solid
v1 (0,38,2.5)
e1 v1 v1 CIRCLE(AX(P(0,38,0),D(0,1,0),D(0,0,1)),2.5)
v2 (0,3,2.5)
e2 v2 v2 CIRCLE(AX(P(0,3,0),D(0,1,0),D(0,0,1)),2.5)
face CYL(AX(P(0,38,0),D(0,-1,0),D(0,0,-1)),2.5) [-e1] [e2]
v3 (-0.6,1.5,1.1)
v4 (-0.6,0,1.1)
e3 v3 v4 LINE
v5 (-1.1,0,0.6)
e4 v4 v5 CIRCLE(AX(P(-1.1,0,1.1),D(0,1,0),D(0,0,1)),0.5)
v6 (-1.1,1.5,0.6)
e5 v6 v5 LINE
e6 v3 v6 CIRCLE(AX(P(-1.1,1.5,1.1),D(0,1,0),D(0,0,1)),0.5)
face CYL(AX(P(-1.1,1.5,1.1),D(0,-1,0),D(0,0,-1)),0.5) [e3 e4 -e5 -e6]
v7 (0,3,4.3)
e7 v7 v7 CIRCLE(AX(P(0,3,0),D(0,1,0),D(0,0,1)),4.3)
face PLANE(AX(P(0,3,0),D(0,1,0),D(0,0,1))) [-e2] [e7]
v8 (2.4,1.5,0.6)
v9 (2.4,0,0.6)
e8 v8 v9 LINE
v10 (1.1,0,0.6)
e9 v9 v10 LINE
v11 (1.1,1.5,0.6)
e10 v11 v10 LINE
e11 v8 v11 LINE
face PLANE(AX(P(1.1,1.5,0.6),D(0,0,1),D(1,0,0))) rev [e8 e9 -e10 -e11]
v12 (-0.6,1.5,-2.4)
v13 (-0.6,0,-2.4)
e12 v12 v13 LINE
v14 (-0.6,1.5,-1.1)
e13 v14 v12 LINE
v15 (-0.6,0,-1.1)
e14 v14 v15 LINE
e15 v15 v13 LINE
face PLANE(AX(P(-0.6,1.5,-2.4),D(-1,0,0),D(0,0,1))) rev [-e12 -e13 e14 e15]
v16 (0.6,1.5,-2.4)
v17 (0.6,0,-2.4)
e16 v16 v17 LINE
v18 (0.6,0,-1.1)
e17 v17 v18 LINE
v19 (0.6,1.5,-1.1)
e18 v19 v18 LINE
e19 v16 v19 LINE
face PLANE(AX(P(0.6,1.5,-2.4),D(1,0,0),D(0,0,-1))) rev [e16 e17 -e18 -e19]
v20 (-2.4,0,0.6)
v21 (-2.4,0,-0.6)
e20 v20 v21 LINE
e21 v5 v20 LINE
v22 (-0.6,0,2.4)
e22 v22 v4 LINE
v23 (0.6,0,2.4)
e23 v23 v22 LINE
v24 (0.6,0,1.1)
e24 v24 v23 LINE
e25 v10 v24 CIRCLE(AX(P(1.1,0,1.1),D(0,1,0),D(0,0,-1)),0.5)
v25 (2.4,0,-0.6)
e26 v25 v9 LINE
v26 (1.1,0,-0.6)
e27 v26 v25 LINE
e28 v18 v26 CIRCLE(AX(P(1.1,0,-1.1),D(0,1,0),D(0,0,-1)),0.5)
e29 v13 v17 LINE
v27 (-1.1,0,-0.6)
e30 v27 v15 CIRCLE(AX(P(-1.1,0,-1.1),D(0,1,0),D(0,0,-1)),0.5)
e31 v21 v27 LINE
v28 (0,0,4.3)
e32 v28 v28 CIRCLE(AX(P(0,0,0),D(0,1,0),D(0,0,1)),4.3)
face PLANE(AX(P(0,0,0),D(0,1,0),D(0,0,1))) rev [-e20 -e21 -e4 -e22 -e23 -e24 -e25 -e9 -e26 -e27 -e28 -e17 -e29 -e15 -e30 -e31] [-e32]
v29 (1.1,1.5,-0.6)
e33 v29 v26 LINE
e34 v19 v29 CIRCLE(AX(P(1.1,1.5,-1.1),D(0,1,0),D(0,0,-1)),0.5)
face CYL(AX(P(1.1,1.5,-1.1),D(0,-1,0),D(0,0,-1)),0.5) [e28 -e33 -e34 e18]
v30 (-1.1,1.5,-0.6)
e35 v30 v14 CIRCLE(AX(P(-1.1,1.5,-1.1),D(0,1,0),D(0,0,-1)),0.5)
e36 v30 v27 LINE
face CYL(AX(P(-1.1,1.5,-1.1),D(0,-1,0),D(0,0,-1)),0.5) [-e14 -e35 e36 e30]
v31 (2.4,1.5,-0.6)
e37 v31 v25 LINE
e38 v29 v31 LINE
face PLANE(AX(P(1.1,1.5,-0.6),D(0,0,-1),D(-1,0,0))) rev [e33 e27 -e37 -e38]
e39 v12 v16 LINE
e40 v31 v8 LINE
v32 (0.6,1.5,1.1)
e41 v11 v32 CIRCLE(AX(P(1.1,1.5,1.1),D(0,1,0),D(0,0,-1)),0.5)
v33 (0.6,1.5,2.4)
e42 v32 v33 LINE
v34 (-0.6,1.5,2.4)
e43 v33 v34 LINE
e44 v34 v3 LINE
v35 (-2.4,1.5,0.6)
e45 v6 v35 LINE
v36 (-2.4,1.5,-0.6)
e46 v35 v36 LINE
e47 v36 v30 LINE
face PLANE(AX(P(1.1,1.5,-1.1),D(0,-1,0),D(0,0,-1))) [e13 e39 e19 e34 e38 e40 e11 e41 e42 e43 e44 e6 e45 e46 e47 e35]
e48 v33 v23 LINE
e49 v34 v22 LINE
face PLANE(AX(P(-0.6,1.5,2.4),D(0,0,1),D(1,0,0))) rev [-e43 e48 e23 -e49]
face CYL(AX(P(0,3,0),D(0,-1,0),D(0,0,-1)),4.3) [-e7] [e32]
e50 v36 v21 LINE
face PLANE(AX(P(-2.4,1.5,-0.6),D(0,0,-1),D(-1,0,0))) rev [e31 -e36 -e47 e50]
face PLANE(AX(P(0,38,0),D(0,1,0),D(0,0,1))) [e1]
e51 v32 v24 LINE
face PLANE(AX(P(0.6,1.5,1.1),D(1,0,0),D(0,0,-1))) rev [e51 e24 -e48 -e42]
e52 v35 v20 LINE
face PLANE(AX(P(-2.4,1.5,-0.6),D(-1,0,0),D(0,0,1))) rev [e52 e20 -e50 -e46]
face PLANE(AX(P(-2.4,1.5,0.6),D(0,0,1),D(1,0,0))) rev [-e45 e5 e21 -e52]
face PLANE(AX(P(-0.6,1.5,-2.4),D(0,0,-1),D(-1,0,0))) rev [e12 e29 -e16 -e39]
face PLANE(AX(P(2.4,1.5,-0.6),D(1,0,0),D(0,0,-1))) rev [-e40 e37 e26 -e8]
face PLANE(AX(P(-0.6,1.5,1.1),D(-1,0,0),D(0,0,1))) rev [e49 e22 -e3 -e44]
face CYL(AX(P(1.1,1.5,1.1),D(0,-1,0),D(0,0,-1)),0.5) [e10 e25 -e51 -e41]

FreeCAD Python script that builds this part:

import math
import FreeCAD as App
import Part
import Sketcher

doc = App.newDocument("Part")
body = doc.addObject("PartDesign::Body", "Body")

# Sketch on XZ plane
sketch1 = body.newObject("Sketcher::SketchObject", "Sketch")
sketch1.AttachmentSupport = (doc.getObject("XZ_Plane"), [""])
sketch1.MapMode = "FlatFace"
sketch1.addGeometry(Part.Circle(App.Vector(0, 0, 0), App.Vector(0, 0, 1), 4.3), False)
sketch1.addConstraint([
    Sketcher.Constraint("Coincident", 0, 3, -1, 1),
    Sketcher.Constraint("Diameter", 0, 8.6),
])
pad1 = body.newObject("PartDesign::Pad", "Pad")
pad1.Profile = sketch1
pad1.Length = 3
pad1.Reversed = True

# Sketch on XZ plane
sketch2 = body.newObject("Sketcher::SketchObject", "Sketch001")
sketch2.AttachmentSupport = (doc.getObject("XZ_Plane"), [""])
sketch2.MapMode = "FlatFace"
sketch2.AttachmentOffset = App.Placement(App.Vector(0, 0, -3), App.Rotation())
sketch2.addGeometry(Part.Circle(App.Vector(0, 0, 0), App.Vector(0, 0, 1), 2.5), False)
sketch2.addConstraint([
    Sketcher.Constraint("Coincident", 0, 3, -1, 1),
    Sketcher.Constraint("Diameter", 0, 5.0),
])
pad2 = body.newObject("PartDesign::Pad", "Pad001")
pad2.Profile = sketch2
pad2.Length = 35
pad2.Reversed = True

# Sketch on XZ plane
sketch3 = body.newObject("Sketcher::SketchObject", "Sketch002")
sketch3.AttachmentSupport = (doc.getObject("XZ_Plane"), [""])
sketch3.MapMode = "FlatFace"
sketch3.addGeometry([
    Part.LineSegment(App.Vector(-0.6, 2.4, 0), App.Vector(-0.6, 1.1, 0)),  # 0
    Part.ArcOfCircle(Part.Circle(App.Vector(-1.1, 1.1, 0), App.Vector(0, 0, 1), 0.5), math.radians(-90), math.radians(0)),  # 1
    Part.LineSegment(App.Vector(-1.1, 0.6, 0), App.Vector(-2.4, 0.6, 0)),  # 2
    Part.LineSegment(App.Vector(-2.4, 0.6, 0), App.Vector(-2.4, -0.6, 0)),  # 3
    Part.LineSegment(App.Vector(-2.4, -0.6, 0), App.Vector(-1.1, -0.6, 0)),  # 4
    Part.ArcOfCircle(Part.Circle(App.Vector(-1.1, -1.1, 0), App.Vector(0, 0, 1), 0.5), math.radians(0), math.radians(90)),  # 5
    Part.LineSegment(App.Vector(-0.6, -1.1, 0), App.Vector(-0.6, -2.4, 0)),  # 6
    Part.LineSegment(App.Vector(-0.6, -2.4, 0), App.Vector(0.6, -2.4, 0)),  # 7
    Part.LineSegment(App.Vector(0.6, -2.4, 0), App.Vector(0.6, -1.1, 0)),  # 8
    Part.ArcOfCircle(Part.Circle(App.Vector(1.1, -1.1, 0), App.Vector(0, 0, 1), 0.5), math.radians(90), math.radians(180)),  # 9
    Part.LineSegment(App.Vector(1.1, -0.6, 0), App.Vector(2.4, -0.6, 0)),  # 10
    Part.LineSegment(App.Vector(2.4, -0.6, 0), App.Vector(2.4, 0.6, 0)),  # 11
    Part.LineSegment(App.Vector(2.4, 0.6, 0), App.Vector(1.1, 0.6, 0)),  # 12
    Part.ArcOfCircle(Part.Circle(App.Vector(1.1, 1.1, 0), App.Vector(0, 0, 1), 0.5), math.radians(180), math.radians(270)),  # 13
    Part.LineSegment(App.Vector(0.6, 1.1, 0), App.Vector(0.6, 2.4, 0)),  # 14
    Part.LineSegment(App.Vector(0.6, 2.4, 0), App.Vector(-0.6, 2.4, 0)),  # 15
], False)
sketch3.addConstraint([
    Sketcher.Constraint("Tangent", 0, 2, 1, 2),
    Sketcher.Constraint("Tangent", 1, 1, 2, 1),
    Sketcher.Constraint("Coincident", 2, 2, 3, 1),
    Sketcher.Constraint("Coincident", 3, 2, 4, 1),
    Sketcher.Constraint("Tangent", 4, 2, 5, 2),
    Sketcher.Constraint("Tangent", 5, 1, 6, 1),
    Sketcher.Constraint("Coincident", 6, 2, 7, 1),
    Sketcher.Constraint("Coincident", 7, 2, 8, 1),
    Sketcher.Constraint("Tangent", 8, 2, 9, 2),
    Sketcher.Constraint("Tangent", 9, 1, 10, 1),
    Sketcher.Constraint("Coincident", 10, 2, 11, 1),
    Sketcher.Constraint("Coincident", 11, 2, 12, 1),
    Sketcher.Constraint("Tangent", 12, 2, 13, 2),
    Sketcher.Constraint("Tangent", 13, 1, 14, 1),
    Sketcher.Constraint("Coincident", 14, 2, 15, 1),
    Sketcher.Constraint("Coincident", 15, 2, 0, 1),
    Sketcher.Constraint("Vertical", 0),
    Sketcher.Constraint("Horizontal", 2),
    Sketcher.Constraint("Vertical", 3),
    Sketcher.Constraint("Horizontal", 4),
    Sketcher.Constraint("Vertical", 6),
    Sketcher.Constraint("Horizontal", 7),
    Sketcher.Constraint("Vertical", 8),
    Sketcher.Constraint("Horizontal", 10),
    Sketcher.Constraint("Vertical", 11),
    Sketcher.Constraint("Horizontal", 12),
    Sketcher.Constraint("Vertical", 14),
    Sketcher.Constraint("Horizontal", 15),
    Sketcher.Constraint("Equal", 1, 5),
    Sketcher.Constraint("Equal", 5, 9),
    Sketcher.Constraint("Equal", 9, 13),
    Sketcher.Constraint("Symmetric", 1, 3, 9, 3, -1, 1),
    Sketcher.Constraint("Symmetric", 5, 3, 13, 3, -1, 1),
    Sketcher.Constraint("Symmetric", 5, 3, 9, 3, -2),
    Sketcher.Constraint("Equal", 4, 10),
    Sketcher.Constraint("Equal", 12, 0),
    Sketcher.Constraint("Equal", 15, 3),
    Sketcher.Constraint("Equal", 0, 6),
    Sketcher.Constraint("Radius", 1, 0.5),
    Sketcher.Constraint("DistanceX", 2, 2, 2, 1, 1.3),
    Sketcher.Constraint("DistanceX", 7, 1, 7, 2, 1.2),
])
pocket1 = body.newObject("PartDesign::Pocket", "Pocket")
pocket1.Profile = sketch3
pocket1.Length = 1.5

doc.recompute()
